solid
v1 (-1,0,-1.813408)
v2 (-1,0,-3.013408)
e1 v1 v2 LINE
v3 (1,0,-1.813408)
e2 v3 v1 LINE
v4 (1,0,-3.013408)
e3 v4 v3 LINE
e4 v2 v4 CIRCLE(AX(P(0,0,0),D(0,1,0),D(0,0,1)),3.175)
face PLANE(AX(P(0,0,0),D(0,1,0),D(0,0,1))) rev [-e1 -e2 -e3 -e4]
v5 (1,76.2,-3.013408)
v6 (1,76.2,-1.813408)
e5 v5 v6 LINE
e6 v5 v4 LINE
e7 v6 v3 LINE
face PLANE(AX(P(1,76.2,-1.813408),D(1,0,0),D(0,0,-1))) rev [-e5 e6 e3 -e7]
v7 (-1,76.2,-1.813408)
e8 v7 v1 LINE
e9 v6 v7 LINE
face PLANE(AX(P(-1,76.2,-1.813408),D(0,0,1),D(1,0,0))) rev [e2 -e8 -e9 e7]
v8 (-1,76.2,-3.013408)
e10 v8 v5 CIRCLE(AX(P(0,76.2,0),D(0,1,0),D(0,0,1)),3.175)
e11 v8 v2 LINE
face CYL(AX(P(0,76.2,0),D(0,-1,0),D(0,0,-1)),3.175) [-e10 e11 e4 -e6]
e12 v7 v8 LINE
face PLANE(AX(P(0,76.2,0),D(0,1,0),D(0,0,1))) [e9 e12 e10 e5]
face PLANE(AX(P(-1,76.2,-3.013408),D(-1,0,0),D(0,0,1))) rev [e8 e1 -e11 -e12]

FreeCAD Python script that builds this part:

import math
import FreeCAD as App
import Part
import Sketcher

V = App.Vector
Q = App.Units.Quantity

doc = App.newDocument("Part")
body = doc.addObject("PartDesign::Body", "Body")

sketch1 = body.newObject("Sketcher::SketchObject", "Sketch")
sketch1.AttachmentSupport = (doc.getObject("XZ_Plane"), [""])
sketch1.MapMode = "FlatFace"
sketch1.addGeometry(Part.LineSegment(V(-1, -1.8, 0), V(-1, -3, 0)), False)
sketch1.addGeometry(Part.ArcOfCircle(Part.Circle(V(0, 0, 0), V(0, 0, 1), 3.2), math.radians(-72), math.radians(252)), False)
sketch1.addGeometry(Part.LineSegment(V(1, -3, 0), V(1, -1.8, 0)), False)
sketch1.addGeometry(Part.LineSegment(V(1, -1.8, 0), V(-1, -1.8, 0)), False)
sketch1.addConstraint(Sketcher.Constraint("Coincident", 0, 2, 1, 2))
sketch1.addConstraint(Sketcher.Constraint("Coincident", 1, 1, 2, 1))
sketch1.addConstraint(Sketcher.Constraint("Coincident", 2, 2, 3, 1))
sketch1.addConstraint(Sketcher.Constraint("Coincident", 3, 2, 0, 1))
sketch1.addConstraint(Sketcher.Constraint("Vertical", 0))
sketch1.addConstraint(Sketcher.Constraint("Vertical", 2))
sketch1.addConstraint(Sketcher.Constraint("Horizontal", 3))
sketch1.addConstraint(Sketcher.Constraint("Coincident", 1, 3, -1, 1))
sketch1.addConstraint(Sketcher.Constraint("Horizontal", 0, 2, 1, 1))
sketch1.addConstraint(Sketcher.Constraint("DistanceX", 3, 2, 3, 1, Q("2 mm")))
sketch1.addConstraint(Sketcher.Constraint("DistanceY", 0, 2, 0, 1, Q("1.2 mm")))
sketch1.addConstraint(Sketcher.Constraint("Radius", 1, Q("3.175 mm")))
pad1 = body.newObject("PartDesign::Pad", "Pad")
pad1.Profile = sketch1
pad1.Length = 76.2
pad1.Reversed = True

doc.recompute()
